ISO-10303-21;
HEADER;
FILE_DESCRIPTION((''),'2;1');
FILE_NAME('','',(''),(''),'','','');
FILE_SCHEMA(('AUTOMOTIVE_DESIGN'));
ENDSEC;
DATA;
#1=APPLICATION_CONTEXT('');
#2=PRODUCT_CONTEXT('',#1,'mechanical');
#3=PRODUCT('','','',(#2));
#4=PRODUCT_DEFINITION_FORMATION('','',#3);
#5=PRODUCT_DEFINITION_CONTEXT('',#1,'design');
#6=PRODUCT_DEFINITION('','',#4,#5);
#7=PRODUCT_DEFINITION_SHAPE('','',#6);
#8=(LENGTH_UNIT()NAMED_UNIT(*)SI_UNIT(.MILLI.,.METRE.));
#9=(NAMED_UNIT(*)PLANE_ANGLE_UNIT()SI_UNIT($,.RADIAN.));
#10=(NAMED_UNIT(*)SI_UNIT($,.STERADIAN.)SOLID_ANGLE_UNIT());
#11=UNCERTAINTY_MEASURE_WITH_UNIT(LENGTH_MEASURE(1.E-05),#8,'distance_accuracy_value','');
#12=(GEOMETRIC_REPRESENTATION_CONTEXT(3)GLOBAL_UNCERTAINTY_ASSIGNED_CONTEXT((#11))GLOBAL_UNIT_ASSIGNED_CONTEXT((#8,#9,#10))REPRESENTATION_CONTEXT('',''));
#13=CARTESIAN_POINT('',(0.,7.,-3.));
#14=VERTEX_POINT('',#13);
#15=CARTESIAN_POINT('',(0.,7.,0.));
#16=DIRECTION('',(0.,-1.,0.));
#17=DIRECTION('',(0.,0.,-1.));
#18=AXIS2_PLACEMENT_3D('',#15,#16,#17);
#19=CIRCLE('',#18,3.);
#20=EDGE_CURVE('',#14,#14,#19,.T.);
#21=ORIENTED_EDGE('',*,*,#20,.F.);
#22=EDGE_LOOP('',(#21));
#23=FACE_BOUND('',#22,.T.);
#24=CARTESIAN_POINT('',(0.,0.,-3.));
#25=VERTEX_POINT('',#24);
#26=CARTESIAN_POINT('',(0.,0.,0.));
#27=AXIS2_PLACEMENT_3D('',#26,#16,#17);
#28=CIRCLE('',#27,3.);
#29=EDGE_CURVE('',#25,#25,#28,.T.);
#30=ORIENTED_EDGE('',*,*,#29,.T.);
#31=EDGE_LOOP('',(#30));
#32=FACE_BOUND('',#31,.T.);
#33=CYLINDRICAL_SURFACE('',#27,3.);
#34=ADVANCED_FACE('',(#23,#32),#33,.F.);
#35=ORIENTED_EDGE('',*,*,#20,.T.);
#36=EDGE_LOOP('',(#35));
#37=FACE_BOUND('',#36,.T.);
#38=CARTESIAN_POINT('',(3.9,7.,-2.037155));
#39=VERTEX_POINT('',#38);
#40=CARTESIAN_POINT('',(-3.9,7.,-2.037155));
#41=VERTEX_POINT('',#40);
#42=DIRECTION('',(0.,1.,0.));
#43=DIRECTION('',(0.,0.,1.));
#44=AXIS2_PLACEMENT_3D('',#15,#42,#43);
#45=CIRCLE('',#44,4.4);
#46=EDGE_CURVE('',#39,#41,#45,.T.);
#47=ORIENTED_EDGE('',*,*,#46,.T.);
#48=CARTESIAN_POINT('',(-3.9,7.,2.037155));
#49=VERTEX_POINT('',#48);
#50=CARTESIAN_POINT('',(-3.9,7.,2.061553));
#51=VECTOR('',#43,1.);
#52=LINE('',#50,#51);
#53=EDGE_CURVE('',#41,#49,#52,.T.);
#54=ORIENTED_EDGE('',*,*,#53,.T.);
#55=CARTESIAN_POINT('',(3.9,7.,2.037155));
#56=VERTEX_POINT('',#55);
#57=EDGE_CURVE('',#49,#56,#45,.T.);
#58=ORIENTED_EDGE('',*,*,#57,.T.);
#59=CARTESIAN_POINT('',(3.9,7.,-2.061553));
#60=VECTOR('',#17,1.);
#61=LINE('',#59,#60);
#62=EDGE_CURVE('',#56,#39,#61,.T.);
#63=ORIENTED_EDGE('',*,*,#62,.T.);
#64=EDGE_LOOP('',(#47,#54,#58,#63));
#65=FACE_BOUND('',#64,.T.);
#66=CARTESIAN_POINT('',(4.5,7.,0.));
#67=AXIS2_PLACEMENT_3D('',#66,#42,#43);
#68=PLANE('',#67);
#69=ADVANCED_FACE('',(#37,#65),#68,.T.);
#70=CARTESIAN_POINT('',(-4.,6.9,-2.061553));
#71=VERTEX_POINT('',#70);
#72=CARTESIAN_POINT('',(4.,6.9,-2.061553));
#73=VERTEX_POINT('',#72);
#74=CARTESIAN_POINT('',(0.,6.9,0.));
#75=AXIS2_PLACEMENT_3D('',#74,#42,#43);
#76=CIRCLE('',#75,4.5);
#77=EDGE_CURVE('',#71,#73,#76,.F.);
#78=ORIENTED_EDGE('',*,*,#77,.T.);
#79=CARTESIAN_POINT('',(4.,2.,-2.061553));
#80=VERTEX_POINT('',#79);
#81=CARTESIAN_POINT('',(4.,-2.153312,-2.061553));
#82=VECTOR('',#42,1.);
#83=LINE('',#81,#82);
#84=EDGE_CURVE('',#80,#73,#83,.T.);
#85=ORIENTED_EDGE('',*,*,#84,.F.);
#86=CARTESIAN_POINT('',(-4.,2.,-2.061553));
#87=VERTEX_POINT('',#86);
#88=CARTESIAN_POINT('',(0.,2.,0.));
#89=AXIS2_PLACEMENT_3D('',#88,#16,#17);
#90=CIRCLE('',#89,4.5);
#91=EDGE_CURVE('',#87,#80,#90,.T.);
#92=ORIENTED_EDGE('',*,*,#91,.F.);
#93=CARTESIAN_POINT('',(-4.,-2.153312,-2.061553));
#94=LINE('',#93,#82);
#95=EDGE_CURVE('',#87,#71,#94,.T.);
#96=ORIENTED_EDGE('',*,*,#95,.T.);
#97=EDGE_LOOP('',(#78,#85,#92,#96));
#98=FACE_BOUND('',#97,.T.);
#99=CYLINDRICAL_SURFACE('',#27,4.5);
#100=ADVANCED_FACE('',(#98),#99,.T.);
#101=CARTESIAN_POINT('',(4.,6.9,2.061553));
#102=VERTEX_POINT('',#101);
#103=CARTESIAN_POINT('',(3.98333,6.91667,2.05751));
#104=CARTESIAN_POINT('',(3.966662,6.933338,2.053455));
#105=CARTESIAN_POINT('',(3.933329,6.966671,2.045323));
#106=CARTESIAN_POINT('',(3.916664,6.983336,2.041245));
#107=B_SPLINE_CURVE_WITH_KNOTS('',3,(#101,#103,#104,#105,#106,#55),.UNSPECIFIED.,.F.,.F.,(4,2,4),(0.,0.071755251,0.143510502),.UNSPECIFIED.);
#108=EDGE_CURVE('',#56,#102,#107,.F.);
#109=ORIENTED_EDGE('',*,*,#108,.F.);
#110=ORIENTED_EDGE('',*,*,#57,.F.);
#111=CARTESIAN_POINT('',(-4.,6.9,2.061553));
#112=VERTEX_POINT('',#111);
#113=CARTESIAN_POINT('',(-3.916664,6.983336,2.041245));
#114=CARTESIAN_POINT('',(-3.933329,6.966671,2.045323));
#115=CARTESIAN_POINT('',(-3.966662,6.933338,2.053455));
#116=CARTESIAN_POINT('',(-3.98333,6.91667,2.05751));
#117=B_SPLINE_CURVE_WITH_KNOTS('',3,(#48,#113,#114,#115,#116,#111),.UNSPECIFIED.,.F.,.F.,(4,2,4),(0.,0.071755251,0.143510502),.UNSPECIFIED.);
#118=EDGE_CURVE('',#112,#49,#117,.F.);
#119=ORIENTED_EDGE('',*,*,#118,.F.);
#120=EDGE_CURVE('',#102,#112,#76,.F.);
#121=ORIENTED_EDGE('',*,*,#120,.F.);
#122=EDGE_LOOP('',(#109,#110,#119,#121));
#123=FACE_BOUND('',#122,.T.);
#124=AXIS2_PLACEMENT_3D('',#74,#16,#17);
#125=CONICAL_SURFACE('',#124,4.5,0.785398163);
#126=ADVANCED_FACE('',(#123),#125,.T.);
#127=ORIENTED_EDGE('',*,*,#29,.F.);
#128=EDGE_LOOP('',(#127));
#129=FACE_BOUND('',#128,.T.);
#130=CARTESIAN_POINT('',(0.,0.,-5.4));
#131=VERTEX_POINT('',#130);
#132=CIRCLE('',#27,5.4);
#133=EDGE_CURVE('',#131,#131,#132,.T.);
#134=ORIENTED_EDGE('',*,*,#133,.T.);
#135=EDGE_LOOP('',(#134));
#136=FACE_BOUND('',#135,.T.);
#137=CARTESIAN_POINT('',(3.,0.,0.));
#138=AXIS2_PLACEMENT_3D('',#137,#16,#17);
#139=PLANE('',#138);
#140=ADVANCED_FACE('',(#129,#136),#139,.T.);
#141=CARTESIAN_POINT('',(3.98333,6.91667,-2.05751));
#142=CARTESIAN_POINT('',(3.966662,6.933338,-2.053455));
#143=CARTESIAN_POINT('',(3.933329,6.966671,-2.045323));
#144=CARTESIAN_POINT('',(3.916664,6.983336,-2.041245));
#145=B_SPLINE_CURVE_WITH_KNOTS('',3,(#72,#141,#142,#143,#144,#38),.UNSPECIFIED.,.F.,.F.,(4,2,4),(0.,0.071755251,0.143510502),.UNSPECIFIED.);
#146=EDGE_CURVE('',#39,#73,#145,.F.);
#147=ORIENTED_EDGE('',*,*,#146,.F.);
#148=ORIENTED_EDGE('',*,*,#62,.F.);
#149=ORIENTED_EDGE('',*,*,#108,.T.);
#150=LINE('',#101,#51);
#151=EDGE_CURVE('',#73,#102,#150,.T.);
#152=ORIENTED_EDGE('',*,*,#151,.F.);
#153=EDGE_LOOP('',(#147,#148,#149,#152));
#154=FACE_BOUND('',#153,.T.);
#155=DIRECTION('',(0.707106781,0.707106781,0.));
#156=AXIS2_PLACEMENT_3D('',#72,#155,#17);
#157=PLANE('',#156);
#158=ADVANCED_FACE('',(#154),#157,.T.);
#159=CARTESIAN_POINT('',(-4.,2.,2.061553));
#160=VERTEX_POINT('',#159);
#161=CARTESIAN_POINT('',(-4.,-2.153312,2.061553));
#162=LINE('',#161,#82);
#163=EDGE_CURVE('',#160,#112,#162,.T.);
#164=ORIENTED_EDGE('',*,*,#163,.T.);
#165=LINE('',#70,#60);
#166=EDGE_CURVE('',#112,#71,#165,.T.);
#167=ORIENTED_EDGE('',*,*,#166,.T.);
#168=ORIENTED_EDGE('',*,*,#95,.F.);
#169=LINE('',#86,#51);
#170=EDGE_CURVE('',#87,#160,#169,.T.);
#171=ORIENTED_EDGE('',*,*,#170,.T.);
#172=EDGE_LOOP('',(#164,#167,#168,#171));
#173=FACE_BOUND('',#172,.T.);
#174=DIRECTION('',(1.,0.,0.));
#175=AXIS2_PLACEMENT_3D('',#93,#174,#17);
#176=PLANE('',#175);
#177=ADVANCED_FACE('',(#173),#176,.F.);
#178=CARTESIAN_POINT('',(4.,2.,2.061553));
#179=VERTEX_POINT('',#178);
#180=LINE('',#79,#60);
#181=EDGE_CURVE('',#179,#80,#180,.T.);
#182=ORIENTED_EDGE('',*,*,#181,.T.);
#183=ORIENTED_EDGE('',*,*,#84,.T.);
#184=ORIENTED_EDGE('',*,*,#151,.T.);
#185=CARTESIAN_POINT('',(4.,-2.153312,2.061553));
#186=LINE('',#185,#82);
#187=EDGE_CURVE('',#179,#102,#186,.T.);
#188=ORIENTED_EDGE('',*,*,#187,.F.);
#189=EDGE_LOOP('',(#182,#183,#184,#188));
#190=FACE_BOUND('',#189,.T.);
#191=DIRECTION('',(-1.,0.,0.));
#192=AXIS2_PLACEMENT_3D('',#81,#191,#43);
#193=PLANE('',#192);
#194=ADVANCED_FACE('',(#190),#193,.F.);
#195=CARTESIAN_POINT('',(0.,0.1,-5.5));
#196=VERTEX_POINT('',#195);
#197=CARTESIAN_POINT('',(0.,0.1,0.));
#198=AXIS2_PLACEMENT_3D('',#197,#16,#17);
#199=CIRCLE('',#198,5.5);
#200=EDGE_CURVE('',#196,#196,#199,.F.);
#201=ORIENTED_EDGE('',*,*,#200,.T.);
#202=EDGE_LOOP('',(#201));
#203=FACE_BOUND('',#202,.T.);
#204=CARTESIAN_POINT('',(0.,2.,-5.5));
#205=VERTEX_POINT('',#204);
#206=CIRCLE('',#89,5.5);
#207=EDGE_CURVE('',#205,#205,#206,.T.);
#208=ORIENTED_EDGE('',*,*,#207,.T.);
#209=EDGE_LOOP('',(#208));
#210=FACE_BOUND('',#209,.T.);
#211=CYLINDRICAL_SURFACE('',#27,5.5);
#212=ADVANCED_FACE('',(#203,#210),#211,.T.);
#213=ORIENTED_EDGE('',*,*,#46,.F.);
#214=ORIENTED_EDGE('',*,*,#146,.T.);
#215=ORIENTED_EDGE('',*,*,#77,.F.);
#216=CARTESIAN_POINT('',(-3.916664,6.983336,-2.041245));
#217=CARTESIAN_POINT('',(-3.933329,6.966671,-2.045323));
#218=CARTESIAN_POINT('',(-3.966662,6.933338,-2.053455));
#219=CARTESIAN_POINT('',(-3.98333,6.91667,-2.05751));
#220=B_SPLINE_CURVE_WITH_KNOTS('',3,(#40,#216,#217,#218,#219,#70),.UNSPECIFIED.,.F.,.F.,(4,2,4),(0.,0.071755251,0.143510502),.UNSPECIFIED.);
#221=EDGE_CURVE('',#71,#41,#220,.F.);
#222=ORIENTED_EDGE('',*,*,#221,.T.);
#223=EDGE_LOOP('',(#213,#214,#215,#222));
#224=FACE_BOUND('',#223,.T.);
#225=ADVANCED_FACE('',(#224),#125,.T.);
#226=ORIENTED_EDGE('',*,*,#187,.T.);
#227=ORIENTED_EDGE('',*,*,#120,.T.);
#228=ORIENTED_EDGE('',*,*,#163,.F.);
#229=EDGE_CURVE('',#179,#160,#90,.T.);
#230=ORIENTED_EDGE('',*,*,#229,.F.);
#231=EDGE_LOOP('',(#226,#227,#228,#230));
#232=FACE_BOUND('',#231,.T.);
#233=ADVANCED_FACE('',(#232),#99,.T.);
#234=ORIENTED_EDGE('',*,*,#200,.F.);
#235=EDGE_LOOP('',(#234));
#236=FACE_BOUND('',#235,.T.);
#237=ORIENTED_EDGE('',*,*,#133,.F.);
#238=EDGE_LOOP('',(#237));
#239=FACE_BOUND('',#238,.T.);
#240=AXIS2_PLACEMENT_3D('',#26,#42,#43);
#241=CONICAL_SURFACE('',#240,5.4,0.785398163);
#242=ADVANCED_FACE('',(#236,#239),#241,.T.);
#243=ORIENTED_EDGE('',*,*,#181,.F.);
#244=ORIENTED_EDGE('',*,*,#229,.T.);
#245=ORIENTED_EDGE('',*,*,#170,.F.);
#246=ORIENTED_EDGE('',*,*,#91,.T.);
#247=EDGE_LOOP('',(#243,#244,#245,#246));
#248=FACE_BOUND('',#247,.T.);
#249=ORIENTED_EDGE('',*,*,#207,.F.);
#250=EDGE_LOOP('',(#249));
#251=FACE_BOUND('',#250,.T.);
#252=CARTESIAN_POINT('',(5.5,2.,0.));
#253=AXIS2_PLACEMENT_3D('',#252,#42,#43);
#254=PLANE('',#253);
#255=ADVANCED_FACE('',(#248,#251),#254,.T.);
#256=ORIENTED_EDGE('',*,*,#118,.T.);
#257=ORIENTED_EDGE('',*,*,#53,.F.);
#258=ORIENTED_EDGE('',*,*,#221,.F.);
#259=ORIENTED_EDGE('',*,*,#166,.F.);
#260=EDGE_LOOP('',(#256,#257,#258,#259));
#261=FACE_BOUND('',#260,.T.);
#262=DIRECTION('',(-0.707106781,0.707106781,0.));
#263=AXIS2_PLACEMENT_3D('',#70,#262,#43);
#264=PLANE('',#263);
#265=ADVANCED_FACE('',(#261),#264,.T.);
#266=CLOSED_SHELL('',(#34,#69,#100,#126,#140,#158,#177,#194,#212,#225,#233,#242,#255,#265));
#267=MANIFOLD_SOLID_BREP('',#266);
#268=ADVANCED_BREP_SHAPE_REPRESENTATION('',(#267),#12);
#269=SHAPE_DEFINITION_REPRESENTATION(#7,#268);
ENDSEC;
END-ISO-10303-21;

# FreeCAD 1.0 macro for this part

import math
import FreeCAD as App
import Part
import Sketcher

V = App.Vector
Q = App.Units.Quantity


def edges_at(feature, points):
    """Names of the edges that pass closest to the given points."""
    edges = feature.Shape.Edges
    near = lambda p: min(range(len(edges)), key=lambda i: edges[i].distToShape(Part.Vertex(*p))[0])
    return sorted({f"Edge{near(p) + 1}" for p in points})

doc = App.newDocument("Part")
body = doc.addObject("PartDesign::Body", "Body")

sketch1 = body.newObject("Sketcher::SketchObject", "Sketch")
sketch1.AttachmentSupport = (doc.getObject("XY_Plane"), [""])
sketch1.MapMode = "FlatFace"
sketch1.addGeometry([
    Part.LineSegment(V(3, 0, 0), V(5.5, 0, 0)),
    Part.LineSegment(V(5.5, 0, 0), V(5.5, 2, 0)),
    Part.LineSegment(V(5.5, 2, 0), V(4.5, 2, 0)),
    Part.LineSegment(V(4.5, 2, 0), V(4.5, 7, 0)),
    Part.LineSegment(V(4.5, 7, 0), V(3, 7, 0)),
    Part.LineSegment(V(3, 7, 0), V(3, 0, 0)),
], False)
sketch1.addConstraint([
    Sketcher.Constraint("Coincident", 0, 2, 1, 1),
    Sketcher.Constraint("Coincident", 1, 2, 2, 1),
    Sketcher.Constraint("Coincident", 2, 2, 3, 1),
    Sketcher.Constraint("Coincident", 3, 2, 4, 1),
    Sketcher.Constraint("Coincident", 4, 2, 5, 1),
    Sketcher.Constraint("Coincident", 5, 2, 0, 1),
    Sketcher.Constraint("Horizontal", 0),
    Sketcher.Constraint("Vertical", 1),
    Sketcher.Constraint("Horizontal", 2),
    Sketcher.Constraint("Vertical", 3),
    Sketcher.Constraint("Horizontal", 4),
    Sketcher.Constraint("Vertical", 5),
    Sketcher.Constraint("PointOnObject", 0, 2, -1),
    Sketcher.Constraint("DistanceX", 2, 2, 2, 1, Q("1 mm")),
    Sketcher.Constraint("DistanceY", 1, 1, 1, 2, Q("2 mm")),
    Sketcher.Constraint("DistanceY", 3, 1, 3, 2, Q("5 mm")),
    Sketcher.Constraint("DistanceX", 0, 1, 0, 2, Q("2.5 mm")),
    Sketcher.Constraint("DistanceX", -1, 1, 4, 2, Q("3 mm")),
])
revolution = body.newObject("PartDesign::Revolution", "Revolution")
revolution.Profile = sketch1
revolution.ReferenceAxis = (sketch1, ["V_Axis"])
revolution.Angle = 360

sketch2 = body.newObject("Sketcher::SketchObject", "Sketch001")
sketch2.AttachmentSupport = (doc.getObject("XZ_Plane"), [""])
sketch2.MapMode = "FlatFace"
sketch2.AttachmentOffset = App.Placement(V(0, 0, -7), App.Rotation())
sketch2.addGeometry([
    Part.LineSegment(V(-4, 2.061553, 0), V(-4, -2.061553, 0)),
    Part.ArcOfCircle(Part.Circle(V(0, 0, 0), V(0, 0, 1), 4.5), math.radians(152.733956), math.radians(207.266044)),
    Part.LineSegment(V(4, -2.061553, 0), V(4, 2.061553, 0)),
    Part.ArcOfCircle(Part.Circle(V(0, 0, 0), V(0, 0, 1), 4.5), math.radians(-27.266044), math.radians(27.266044)),
], False)
sketch2.addConstraint([
    Sketcher.Constraint("Coincident", 0, 1, 1, 1),
    Sketcher.Constraint("Coincident", 1, 2, 0, 2),
    Sketcher.Constraint("Coincident", 2, 1, 3, 1),
    Sketcher.Constraint("Coincident", 3, 2, 2, 2),
    Sketcher.Constraint("Vertical", 0),
    Sketcher.Constraint("Vertical", 2),
    Sketcher.Constraint("Coincident", 1, 3, -1, 1),
    Sketcher.Constraint("Coincident", 3, 3, -1, 1),
    Sketcher.Constraint("Equal", 1, 3),
    Sketcher.Constraint("Horizontal", 1, 2, 2, 1),
    Sketcher.Constraint("Radius", 1, Q("4.5 mm")),
    Sketcher.Constraint("DistanceX", 0, 1, -1, 1, Q("4 mm")),
])
pocket1 = body.newObject("PartDesign::Pocket", "Pocket")
pocket1.Profile = sketch2
pocket1.Type = "TwoLengths"
pocket1.Length = 11.464225
pocket1.Length2 = 5
doc.recompute()

chamfer = body.newObject("PartDesign::Chamfer", "Chamfer")
chamfer.Base = (pocket1, edges_at(pocket1, [
    (0, 7, 4.5),
    (0, 7, -4.5),
    (4, 7, 0),
    (-4, 7, 0),
    (0, 0, 5.5),
]))
chamfer.Size = 0.1

doc.recompute()
